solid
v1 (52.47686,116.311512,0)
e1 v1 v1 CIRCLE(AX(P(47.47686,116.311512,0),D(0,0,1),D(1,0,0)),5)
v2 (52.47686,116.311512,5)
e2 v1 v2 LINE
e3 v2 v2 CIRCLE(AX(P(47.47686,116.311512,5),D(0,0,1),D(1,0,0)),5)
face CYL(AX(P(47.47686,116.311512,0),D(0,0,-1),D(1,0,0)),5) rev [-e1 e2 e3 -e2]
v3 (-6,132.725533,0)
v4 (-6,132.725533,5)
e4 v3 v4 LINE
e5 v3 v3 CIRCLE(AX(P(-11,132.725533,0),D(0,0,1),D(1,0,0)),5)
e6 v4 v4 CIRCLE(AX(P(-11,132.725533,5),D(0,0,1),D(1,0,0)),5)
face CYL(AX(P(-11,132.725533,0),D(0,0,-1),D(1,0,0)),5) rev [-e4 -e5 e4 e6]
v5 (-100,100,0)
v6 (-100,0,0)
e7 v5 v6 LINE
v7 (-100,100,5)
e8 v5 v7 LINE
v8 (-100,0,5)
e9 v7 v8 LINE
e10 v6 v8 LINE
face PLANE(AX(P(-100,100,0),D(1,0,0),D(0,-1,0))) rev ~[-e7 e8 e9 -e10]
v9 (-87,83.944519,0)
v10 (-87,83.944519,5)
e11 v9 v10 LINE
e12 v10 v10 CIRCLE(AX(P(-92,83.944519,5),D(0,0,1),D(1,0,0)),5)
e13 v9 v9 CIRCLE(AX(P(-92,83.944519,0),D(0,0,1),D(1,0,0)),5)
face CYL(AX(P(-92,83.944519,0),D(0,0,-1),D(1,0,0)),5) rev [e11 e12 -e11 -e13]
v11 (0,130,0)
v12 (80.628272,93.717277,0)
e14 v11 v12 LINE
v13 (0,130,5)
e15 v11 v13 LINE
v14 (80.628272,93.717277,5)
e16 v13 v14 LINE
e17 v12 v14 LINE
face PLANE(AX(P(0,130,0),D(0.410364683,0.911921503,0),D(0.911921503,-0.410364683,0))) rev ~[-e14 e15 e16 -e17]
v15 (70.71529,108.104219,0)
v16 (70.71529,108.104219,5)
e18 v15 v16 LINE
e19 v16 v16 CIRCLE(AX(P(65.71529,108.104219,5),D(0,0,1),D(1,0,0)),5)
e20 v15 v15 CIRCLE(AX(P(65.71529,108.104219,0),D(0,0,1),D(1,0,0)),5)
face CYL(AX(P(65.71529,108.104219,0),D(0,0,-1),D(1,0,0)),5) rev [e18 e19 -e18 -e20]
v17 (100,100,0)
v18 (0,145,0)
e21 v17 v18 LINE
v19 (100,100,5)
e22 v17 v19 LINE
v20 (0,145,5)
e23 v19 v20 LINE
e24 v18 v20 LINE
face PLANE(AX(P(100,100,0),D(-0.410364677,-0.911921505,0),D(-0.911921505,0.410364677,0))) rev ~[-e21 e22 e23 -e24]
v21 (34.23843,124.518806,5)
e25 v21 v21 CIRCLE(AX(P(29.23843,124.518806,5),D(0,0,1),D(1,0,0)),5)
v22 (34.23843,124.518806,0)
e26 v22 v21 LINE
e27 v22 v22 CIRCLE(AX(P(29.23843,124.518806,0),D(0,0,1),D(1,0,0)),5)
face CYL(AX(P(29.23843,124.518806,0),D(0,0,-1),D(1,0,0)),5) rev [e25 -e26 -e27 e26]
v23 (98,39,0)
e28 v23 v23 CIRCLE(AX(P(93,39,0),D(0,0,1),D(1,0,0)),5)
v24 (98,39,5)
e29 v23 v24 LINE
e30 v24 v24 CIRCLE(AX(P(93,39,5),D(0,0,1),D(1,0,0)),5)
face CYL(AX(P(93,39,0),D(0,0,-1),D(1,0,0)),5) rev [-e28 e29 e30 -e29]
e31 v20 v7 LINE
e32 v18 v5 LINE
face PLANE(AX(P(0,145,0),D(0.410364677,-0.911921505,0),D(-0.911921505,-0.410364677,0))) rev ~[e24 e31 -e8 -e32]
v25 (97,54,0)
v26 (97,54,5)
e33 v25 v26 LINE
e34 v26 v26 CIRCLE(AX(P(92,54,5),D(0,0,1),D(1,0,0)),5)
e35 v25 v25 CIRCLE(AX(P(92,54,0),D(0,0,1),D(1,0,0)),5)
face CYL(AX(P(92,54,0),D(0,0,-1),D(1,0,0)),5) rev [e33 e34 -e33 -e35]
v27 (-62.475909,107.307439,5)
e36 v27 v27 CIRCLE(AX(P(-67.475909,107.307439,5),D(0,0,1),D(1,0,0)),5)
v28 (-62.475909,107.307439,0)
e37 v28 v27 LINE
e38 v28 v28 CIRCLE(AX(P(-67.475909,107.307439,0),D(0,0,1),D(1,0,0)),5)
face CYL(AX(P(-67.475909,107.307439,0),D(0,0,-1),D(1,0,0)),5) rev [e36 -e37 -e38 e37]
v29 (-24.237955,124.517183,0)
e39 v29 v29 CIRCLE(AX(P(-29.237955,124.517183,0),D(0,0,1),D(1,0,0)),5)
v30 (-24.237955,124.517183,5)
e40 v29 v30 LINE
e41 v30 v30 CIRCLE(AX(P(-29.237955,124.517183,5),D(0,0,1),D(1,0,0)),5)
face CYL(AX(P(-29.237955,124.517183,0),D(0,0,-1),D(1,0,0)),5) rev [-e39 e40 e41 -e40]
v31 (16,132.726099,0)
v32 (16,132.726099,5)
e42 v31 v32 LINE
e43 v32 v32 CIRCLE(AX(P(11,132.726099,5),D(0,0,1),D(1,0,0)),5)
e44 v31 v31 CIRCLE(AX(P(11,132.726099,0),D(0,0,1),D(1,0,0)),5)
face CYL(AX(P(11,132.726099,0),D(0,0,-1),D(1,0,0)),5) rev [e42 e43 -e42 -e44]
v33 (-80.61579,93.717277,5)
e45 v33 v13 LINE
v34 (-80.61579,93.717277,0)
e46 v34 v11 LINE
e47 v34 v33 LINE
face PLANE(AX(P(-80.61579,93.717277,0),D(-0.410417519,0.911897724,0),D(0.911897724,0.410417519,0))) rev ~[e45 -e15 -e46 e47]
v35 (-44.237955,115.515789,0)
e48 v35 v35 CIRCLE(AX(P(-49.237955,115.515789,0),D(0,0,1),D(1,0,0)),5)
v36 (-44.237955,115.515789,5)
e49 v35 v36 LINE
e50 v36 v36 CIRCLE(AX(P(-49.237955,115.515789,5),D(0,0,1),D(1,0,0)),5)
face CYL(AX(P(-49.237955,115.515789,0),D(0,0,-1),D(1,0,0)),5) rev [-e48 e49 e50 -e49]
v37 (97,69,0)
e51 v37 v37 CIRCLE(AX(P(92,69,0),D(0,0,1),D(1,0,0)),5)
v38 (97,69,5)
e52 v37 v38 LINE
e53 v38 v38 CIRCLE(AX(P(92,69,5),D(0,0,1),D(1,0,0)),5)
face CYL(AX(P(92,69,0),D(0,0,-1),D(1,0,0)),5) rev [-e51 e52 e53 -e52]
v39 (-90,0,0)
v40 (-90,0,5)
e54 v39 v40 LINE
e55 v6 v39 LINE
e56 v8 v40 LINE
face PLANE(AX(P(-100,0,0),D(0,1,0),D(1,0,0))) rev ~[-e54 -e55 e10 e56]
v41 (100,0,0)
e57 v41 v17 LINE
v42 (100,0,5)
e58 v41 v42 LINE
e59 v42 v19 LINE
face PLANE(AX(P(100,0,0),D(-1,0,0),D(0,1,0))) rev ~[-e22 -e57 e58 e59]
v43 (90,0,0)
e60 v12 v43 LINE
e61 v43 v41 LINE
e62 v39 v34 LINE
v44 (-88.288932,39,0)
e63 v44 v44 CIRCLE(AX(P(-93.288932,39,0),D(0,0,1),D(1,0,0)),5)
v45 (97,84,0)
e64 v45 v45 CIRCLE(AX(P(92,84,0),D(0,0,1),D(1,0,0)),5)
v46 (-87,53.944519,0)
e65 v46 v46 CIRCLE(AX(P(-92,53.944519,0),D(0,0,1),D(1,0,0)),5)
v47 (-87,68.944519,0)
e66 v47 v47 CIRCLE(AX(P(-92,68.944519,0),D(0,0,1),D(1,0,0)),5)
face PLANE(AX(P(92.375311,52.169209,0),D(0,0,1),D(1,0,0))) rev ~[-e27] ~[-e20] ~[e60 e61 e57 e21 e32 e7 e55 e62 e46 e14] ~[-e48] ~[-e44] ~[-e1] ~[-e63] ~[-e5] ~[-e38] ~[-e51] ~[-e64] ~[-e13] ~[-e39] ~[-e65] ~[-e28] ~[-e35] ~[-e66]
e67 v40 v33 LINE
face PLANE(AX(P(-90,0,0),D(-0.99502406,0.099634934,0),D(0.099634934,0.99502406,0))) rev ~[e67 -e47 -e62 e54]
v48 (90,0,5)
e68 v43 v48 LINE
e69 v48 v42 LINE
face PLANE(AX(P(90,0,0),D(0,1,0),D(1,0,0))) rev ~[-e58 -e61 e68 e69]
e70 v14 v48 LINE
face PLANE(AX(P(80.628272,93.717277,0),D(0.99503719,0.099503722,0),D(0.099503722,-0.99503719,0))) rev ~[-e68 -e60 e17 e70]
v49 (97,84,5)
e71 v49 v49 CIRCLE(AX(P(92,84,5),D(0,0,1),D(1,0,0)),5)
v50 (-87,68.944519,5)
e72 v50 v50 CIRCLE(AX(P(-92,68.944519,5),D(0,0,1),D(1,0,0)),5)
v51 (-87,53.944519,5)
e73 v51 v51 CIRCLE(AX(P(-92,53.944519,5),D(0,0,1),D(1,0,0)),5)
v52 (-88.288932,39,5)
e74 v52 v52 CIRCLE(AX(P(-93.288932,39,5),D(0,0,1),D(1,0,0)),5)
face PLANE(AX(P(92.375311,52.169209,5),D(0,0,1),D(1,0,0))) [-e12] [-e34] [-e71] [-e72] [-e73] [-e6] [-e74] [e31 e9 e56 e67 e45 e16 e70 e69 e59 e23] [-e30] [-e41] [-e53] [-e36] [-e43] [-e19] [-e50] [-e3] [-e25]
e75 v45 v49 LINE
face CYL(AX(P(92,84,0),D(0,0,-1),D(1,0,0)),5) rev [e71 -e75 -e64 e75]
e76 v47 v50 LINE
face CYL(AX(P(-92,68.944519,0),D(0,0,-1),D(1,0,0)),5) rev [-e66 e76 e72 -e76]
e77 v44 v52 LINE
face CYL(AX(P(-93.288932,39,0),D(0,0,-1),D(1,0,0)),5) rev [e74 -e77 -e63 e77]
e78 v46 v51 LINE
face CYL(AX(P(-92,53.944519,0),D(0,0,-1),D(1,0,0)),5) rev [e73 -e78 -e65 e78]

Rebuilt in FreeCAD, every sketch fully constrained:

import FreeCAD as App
import Part
import Sketcher

V = App.Vector
Q = App.Units.Quantity


def add_polygon(sketch, points):
    """Adds a closed chain of lines whose ends are joined by coincident constraints."""
    first, n = sketch.GeometryCount, len(points)
    for a, b in zip(points, points[1:] + points[:1]):
        sketch.addGeometry(Part.LineSegment(App.Vector(*a, 0), App.Vector(*b, 0)), False)
    for i in range(n):
        sketch.addConstraint(Sketcher.Constraint("Coincident", first + i, 2, first + (i + 1) % n, 1))

doc = App.newDocument("Part")
body = doc.addObject("PartDesign::Body", "Body")

sketch1 = body.newObject("Sketcher::SketchObject", "Sketch")
sketch1.AttachmentSupport = (doc.getObject("XY_Plane"), [""])
sketch1.MapMode = "FlatFace"
add_polygon(sketch1, [(81, 94), (90, 0), (100, 0), (100, 100), (0, 145), (-100, 100), (-100, 0), (-90, 0), (-81, 94), (0, 130)])
sketch1.addGeometry(Part.Circle(V(-93, 39, 0), V(0, 0, 1), 5), False)
sketch1.addGeometry(Part.Circle(V(-92, 54, 0), V(0, 0, 1), 5), False)
sketch1.addGeometry(Part.Circle(V(-92, 69, 0), V(0, 0, 1), 5), False)
sketch1.addGeometry(Part.Circle(V(-92, 84, 0), V(0, 0, 1), 5), False)
sketch1.addGeometry(Part.Circle(V(93, 39, 0), V(0, 0, 1), 5), False)
sketch1.addGeometry(Part.Circle(V(92, 54, 0), V(0, 0, 1), 5), False)
sketch1.addGeometry(Part.Circle(V(92, 69, 0), V(0, 0, 1), 5), False)
sketch1.addGeometry(Part.Circle(V(92, 84, 0), V(0, 0, 1), 5), False)
sketch1.addGeometry(Part.Circle(V(-67, 107, 0), V(0, 0, 1), 5), False)
sketch1.addGeometry(Part.Circle(V(-49, 116, 0), V(0, 0, 1), 5), False)
sketch1.addGeometry(Part.Circle(V(-29, 125, 0), V(0, 0, 1), 5), False)
sketch1.addGeometry(Part.Circle(V(-11, 133, 0), V(0, 0, 1), 5), False)
sketch1.addGeometry(Part.Circle(V(66, 108, 0), V(0, 0, 1), 5), False)
sketch1.addGeometry(Part.Circle(V(47, 116, 0), V(0, 0, 1), 5), False)
sketch1.addGeometry(Part.Circle(V(29, 125, 0), V(0, 0, 1), 5), False)
sketch1.addGeometry(Part.Circle(V(11, 133, 0), V(0, 0, 1), 5), False)
sketch1.addConstraint(Sketcher.Constraint("Horizontal", 1))
sketch1.addConstraint(Sketcher.Constraint("Vertical", 2))
sketch1.addConstraint(Sketcher.Constraint("Vertical", 5))
sketch1.addConstraint(Sketcher.Constraint("Horizontal", 6))
sketch1.addConstraint(Sketcher.Constraint("Equal", 10, 11))
sketch1.addConstraint(Sketcher.Constraint("Equal", 11, 12))
sketch1.addConstraint(Sketcher.Constraint("Equal", 12, 13))
sketch1.addConstraint(Sketcher.Constraint("Equal", 13, 14))
sketch1.addConstraint(Sketcher.Constraint("Equal", 14, 15))
sketch1.addConstraint(Sketcher.Constraint("Equal", 15, 16))
sketch1.addConstraint(Sketcher.Constraint("Equal", 16, 17))
sketch1.addConstraint(Sketcher.Constraint("Equal", 17, 18))
sketch1.addConstraint(Sketcher.Constraint("Equal", 18, 19))
sketch1.addConstraint(Sketcher.Constraint("Equal", 19, 20))
sketch1.addConstraint(Sketcher.Constraint("Equal", 20, 21))
sketch1.addConstraint(Sketcher.Constraint("Equal", 21, 22))
sketch1.addConstraint(Sketcher.Constraint("Equal", 22, 23))
sketch1.addConstraint(Sketcher.Constraint("Equal", 23, 24))
sketch1.addConstraint(Sketcher.Constraint("Equal", 24, 25))
sketch1.addConstraint(Sketcher.Constraint("Symmetric", 1, 2, 5, 2, -1, 1))
sketch1.addConstraint(Sketcher.Constraint("Symmetric", 0, 2, 6, 2, -2))
sketch1.addConstraint(Sketcher.Constraint("PointOnObject", 3, 2, -2))
sketch1.addConstraint(Sketcher.Constraint("PointOnObject", 8, 2, -2))
sketch1.addConstraint(Sketcher.Constraint("Parallel", 3, 9))
sketch1.addConstraint(Sketcher.Constraint("Horizontal", 10, 3, 14, 3))
sketch1.addConstraint(Sketcher.Constraint("Horizontal", 2, 2, 4, 2))
sketch1.addConstraint(Sketcher.Constraint("Horizontal", 7, 2, 9, 2))
sketch1.addConstraint(Sketcher.Constraint("Vertical", 11, 3, 12, 3))
sketch1.addConstraint(Sketcher.Constraint("Vertical", 12, 3, 13, 3))
sketch1.addConstraint(Sketcher.Constraint("Vertical", 15, 3, 16, 3))
sketch1.addConstraint(Sketcher.Constraint("Vertical", 16, 3, 17, 3))
sketch1.addConstraint(Sketcher.Constraint("Diameter", 10, Q("10 mm")))
sketch1.addConstraint(Sketcher.Constraint("DistanceX", 1, 1, 1, 2, Q("10 mm")))
sketch1.addConstraint(Sketcher.Constraint("DistanceY", 2, 1, 2, 2, Q("100 mm")))
sketch1.addConstraint(Sketcher.Constraint("DistanceY", -1, 1, 10, 3, Q("39 mm")))
sketch1.addConstraint(Sketcher.Constraint("DistanceX", 11, 3, -1, 1, Q("92 mm")))
sketch1.addConstraint(Sketcher.Constraint("DistanceX", -1, 1, 14, 3, Q("93 mm")))
sketch1.addConstraint(Sketcher.Constraint("DistanceX", -1, 1, 15, 3, Q("92 mm")))
sketch1.addConstraint(Sketcher.Constraint("DistanceY", -1, 1, 15, 3, Q("54 mm")))
sketch1.addConstraint(Sketcher.Constraint("DistanceY", -1, 1, 16, 3, Q("69 mm")))
sketch1.addConstraint(Sketcher.Constraint("DistanceY", -1, 1, 17, 3, Q("84 mm")))
sketch1.addConstraint(Sketcher.Constraint("DistanceX", 21, 3, -1, 1, Q("11 mm")))
sketch1.addConstraint(Sketcher.Constraint("DistanceX", -1, 1, 25, 3, Q("11 mm")))
sketch1.addConstraint(Sketcher.Constraint("DistanceX", -1, 1, 0, 2, Q("90 mm")))
sketch1.addConstraint(Sketcher.Constraint("DistanceY", -1, 1, 3, 2, Q("145 mm")))
sketch1.addConstraint(Sketcher.Constraint("DistanceY", -1, 1, 8, 2, Q("130 mm")))
sketch1.addConstraint(Sketcher.Constraint("DistanceY", 11, 3, 12, 3, Q("15 mm")))
sketch1.addConstraint(Sketcher.Constraint("DistanceY", 12, 3, 13, 3, Q("15 mm")))
sketch1.addConstraint(Sketcher.Constraint("DistanceX", 19, 3, 20, 3, Q("20 mm")))
sketch1.addConstraint(Sketcher.Constraint("DistanceY", -1, 1, 25, 3, Q("132.726099 mm")))
sketch1.addConstraint(Sketcher.Constraint("Distance", 7, Q("94.185941 mm")))
sketch1.addConstraint(Sketcher.Constraint("Distance", 8, Q("88.404421 mm")))
sketch1.addConstraint(Sketcher.Constraint("DistanceY", -1, 1, 11, 3, Q("53.944519 mm")))
sketch1.addConstraint(Sketcher.Constraint("DistanceX", 18, 3, -1, 1, Q("67.475909 mm")))
sketch1.addConstraint(Sketcher.Constraint("DistanceY", -1, 1, 18, 3, Q("107.307439 mm")))
sketch1.addConstraint(Sketcher.Constraint("DistanceY", -1, 1, 19, 3, Q("115.515789 mm")))
sketch1.addConstraint(Sketcher.Constraint("DistanceX", -1, 1, 22, 3, Q("65.71529 mm")))
sketch1.addConstraint(Sketcher.Constraint("DistanceY", -1, 1, 22, 3, Q("108.104219 mm")))
sketch1.addConstraint(Sketcher.Constraint("DistanceX", -1, 1, 23, 3, Q("47.47686 mm")))
sketch1.addConstraint(Sketcher.Constraint("DistanceY", -1, 1, 23, 3, Q("116.311512 mm")))
sketch1.addConstraint(Sketcher.Constraint("DistanceX", -1, 1, 24, 3, Q("29.23843 mm")))
sketch1.addConstraint(Sketcher.Constraint("DistanceX", 10, 3, 14, 3, Q("186.288932 mm")))
sketch1.addConstraint(Sketcher.Constraint("DistanceY", 20, 3, 21, 3, Q("8.20835 mm")))
sketch1.addConstraint(Sketcher.Constraint("DistanceY", 23, 3, 21, 3, Q("16.414021 mm")))
sketch1.addConstraint(Sketcher.Constraint("DistanceX", 19, 3, -1, 1, Q("49.237955 mm")))
sketch1.addConstraint(Sketcher.Constraint("DistanceY", -1, 1, 24, 3, Q("124.518806 mm")))
pad1 = body.newObject("PartDesign::Pad", "Pad")
pad1.Profile = sketch1
pad1.Length = 5

doc.recompute()
